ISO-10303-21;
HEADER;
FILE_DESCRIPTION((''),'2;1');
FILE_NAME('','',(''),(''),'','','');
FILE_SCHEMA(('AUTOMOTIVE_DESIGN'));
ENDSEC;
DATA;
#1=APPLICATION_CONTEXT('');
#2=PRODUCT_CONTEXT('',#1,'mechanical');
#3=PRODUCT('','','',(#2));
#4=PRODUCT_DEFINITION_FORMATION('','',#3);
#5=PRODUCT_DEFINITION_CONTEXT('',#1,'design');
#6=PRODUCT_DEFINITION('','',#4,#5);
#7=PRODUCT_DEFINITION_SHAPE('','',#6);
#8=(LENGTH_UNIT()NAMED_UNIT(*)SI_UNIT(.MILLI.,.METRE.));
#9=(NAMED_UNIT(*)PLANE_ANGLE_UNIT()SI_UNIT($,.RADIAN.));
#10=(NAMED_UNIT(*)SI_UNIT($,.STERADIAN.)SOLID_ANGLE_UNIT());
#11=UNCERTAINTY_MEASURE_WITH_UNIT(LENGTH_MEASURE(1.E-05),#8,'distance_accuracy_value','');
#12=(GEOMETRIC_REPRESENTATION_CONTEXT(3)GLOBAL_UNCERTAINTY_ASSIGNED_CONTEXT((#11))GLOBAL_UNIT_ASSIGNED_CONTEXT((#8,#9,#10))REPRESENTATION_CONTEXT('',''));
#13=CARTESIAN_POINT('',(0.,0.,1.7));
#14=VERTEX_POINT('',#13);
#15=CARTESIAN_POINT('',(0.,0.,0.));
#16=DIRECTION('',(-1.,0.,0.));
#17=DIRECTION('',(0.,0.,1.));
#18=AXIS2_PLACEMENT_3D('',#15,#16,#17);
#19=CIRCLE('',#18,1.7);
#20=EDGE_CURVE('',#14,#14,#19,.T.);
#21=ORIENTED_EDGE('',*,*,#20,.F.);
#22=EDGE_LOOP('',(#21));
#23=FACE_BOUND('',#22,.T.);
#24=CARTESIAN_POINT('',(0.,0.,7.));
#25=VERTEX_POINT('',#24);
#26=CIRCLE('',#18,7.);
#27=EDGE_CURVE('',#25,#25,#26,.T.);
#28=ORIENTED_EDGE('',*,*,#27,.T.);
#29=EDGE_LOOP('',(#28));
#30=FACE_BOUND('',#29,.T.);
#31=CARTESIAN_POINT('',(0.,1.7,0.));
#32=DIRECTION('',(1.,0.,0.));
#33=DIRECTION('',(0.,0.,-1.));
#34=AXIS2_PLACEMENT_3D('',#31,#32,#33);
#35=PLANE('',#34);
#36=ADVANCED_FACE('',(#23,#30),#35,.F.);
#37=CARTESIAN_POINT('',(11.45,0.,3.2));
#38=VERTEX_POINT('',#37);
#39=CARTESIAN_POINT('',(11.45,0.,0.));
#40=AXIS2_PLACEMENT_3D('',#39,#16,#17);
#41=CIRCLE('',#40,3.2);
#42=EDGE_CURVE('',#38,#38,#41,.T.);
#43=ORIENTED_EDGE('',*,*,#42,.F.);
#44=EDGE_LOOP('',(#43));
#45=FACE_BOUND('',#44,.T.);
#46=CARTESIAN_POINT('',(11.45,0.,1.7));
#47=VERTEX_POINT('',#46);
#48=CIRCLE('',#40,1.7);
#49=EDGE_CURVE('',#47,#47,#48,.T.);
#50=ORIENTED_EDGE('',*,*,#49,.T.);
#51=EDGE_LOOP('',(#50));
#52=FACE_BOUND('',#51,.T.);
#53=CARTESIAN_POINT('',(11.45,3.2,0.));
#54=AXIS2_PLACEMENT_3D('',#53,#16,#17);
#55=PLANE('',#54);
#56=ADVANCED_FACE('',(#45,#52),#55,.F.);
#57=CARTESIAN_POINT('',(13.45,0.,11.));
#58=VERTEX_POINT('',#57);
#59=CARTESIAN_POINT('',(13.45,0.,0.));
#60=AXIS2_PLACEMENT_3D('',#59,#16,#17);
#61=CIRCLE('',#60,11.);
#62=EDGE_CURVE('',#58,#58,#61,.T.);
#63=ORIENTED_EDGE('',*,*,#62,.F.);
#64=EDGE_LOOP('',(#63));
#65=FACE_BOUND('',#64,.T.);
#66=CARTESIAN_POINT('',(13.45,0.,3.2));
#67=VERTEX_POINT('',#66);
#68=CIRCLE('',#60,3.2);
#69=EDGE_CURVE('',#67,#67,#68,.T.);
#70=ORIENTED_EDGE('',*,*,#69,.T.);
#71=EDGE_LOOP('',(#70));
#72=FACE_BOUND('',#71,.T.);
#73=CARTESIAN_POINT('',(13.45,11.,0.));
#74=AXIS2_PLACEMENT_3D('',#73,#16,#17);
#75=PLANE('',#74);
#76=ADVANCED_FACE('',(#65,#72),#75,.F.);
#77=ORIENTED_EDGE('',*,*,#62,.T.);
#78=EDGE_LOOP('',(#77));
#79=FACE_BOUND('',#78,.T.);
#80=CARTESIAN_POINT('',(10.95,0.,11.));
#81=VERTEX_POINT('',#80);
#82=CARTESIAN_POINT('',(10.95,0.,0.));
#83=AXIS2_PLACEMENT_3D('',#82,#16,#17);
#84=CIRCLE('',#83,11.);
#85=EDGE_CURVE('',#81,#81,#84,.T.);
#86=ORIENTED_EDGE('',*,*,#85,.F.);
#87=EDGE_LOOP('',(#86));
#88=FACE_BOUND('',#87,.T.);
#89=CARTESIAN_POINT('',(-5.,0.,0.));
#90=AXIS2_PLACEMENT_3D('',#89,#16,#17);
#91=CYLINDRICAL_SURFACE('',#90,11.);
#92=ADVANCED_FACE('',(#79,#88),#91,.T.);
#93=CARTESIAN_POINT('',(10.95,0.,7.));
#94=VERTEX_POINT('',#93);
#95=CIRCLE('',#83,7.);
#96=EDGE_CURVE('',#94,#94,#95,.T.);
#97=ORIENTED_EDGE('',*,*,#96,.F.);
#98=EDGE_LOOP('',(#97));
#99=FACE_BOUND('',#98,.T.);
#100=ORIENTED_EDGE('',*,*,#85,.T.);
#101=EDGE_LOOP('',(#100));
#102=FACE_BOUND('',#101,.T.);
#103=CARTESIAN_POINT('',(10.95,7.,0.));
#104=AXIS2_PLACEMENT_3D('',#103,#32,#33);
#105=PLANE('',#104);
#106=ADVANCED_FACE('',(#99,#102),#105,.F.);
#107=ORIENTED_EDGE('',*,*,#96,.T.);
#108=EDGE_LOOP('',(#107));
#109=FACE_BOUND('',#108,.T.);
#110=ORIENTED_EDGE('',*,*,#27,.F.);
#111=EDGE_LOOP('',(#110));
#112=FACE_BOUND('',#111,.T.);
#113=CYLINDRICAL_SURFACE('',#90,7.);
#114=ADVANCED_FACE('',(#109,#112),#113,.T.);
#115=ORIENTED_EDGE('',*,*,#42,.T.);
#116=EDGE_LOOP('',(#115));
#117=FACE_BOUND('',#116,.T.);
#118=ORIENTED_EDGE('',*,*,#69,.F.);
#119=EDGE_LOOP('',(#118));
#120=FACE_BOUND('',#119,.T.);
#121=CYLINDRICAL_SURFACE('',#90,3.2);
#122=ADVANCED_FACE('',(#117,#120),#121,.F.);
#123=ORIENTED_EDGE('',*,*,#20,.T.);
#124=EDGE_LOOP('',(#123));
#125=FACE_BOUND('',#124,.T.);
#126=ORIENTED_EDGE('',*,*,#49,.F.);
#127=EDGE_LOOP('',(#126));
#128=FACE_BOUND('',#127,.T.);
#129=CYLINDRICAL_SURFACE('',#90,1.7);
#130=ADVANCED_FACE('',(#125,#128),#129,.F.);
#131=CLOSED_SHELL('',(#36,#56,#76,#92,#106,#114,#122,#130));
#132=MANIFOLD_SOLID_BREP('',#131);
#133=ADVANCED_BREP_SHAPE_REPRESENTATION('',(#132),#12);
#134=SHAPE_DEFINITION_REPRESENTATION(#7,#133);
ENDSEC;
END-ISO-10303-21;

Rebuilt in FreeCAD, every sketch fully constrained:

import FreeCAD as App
import Part
import Sketcher
from FreeCAD import Vector
Q = App.Units.Quantity


def add_polygon(sketch, points):
    """Adds a closed chain of lines whose ends are joined by coincident constraints."""
    first, n = sketch.GeometryCount, len(points)
    for a, b in zip(points, points[1:] + points[:1]):
        sketch.addGeometry(Part.LineSegment(App.Vector(*a, 0), App.Vector(*b, 0)), False)
    for i in range(n):
        sketch.addConstraint(Sketcher.Constraint("Coincident", first + i, 2, first + (i + 1) % n, 1))

doc = App.newDocument("Part")
body = doc.addObject("PartDesign::Body", "Body")

# Sketch on XY plane
sketch1 = doc.addObject("Sketcher::SketchObject", "Sketch")
body.addObject(sketch1)
sketch1.AttachmentSupport = (doc.XY_Plane, [""])
sketch1.MapMode = "FlatFace"
add_polygon(sketch1, [(0, 7), (0, 1.7), (11.45, 1.7), (11.45, 3.2), (13.45, 3.2), (13.45, 11), (10.95, 11), (10.95, 7)])  # lines 0-7
sketch1.addConstraint(Sketcher.Constraint("Vertical", 0))
sketch1.addConstraint(Sketcher.Constraint("Horizontal", 1))
sketch1.addConstraint(Sketcher.Constraint("Vertical", 2))
sketch1.addConstraint(Sketcher.Constraint("Horizontal", 3))
sketch1.addConstraint(Sketcher.Constraint("Vertical", 4))
sketch1.addConstraint(Sketcher.Constraint("Horizontal", 5))
sketch1.addConstraint(Sketcher.Constraint("Vertical", 6))
sketch1.addConstraint(Sketcher.Constraint("Horizontal", 7))
sketch1.addConstraint(Sketcher.Constraint("PointOnObject", 0, 2, -2))
sketch1.addConstraint(Sketcher.Constraint("DistanceX", 3, 1, 3, 2, Q("2 mm")))
sketch1.addConstraint(Sketcher.Constraint("DistanceY", 6, 2, 6, 1, Q("4 mm")))
sketch1.addConstraint(Sketcher.Constraint("DistanceX", 5, 2, 5, 1, Q("2.5 mm")))
sketch1.addConstraint(Sketcher.Constraint("DistanceY", 0, 2, 0, 1, Q("5.3 mm")))
sketch1.addConstraint(Sketcher.Constraint("DistanceY", 2, 1, 2, 2, Q("1.5 mm")))
sketch1.addConstraint(Sketcher.Constraint("DistanceY", -1, 1, 4, 2, Q("11 mm")))
sketch1.addConstraint(Sketcher.Constraint("DistanceX", 1, 1, 1, 2, Q("11.45 mm")))
revolution = doc.addObject("PartDesign::Revolution", "Revolution")
body.addObject(revolution)
revolution.Profile = sketch1
revolution.ReferenceAxis = (sketch1, ["H_Axis"])
revolution.Angle = 360

doc.recompute()
